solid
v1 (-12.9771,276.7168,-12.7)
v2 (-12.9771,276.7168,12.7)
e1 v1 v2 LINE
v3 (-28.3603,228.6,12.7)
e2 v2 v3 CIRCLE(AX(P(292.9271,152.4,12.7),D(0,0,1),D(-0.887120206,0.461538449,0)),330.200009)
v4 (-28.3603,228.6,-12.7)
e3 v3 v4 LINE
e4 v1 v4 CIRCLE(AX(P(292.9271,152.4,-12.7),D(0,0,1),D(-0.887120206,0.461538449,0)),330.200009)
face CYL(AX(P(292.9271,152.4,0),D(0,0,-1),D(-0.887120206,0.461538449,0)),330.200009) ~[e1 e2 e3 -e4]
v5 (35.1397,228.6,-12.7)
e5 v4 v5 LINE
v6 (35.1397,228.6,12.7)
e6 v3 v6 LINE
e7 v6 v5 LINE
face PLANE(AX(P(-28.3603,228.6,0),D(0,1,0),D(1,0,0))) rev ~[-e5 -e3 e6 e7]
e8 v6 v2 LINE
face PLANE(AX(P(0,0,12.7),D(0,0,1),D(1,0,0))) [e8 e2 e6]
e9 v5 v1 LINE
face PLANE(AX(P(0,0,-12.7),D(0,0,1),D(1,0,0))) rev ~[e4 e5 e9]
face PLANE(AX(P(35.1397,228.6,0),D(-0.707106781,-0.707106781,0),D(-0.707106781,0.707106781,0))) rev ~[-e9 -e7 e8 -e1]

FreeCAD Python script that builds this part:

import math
import FreeCAD as App
import Part
import Sketcher
Q = App.Units.Quantity

doc = App.newDocument("Part")
body = doc.addObject("PartDesign::Body", "Body")

# Sketch on XY plane
sketch1 = body.newObject("Sketcher::SketchObject", "Sketch")
sketch1.AttachmentSupport = (doc.getObject("XY_Plane"), [""])
sketch1.MapMode = "FlatFace"
sketch1.addGeometry(Part.LineSegment(App.Vector(35, 229, 0), App.Vector(-13, 277, 0)), False)
sketch1.addGeometry(Part.ArcOfCircle(Part.Circle(App.Vector(293, 152, 0), App.Vector(0, 0, 1), 330), math.radians(157.88), math.radians(166.66)), False)
sketch1.addGeometry(Part.LineSegment(App.Vector(-28, 229, 0), App.Vector(35, 229, 0)), False)
sketch1.addConstraint(Sketcher.Constraint("Coincident", 0, 2, 1, 1))
sketch1.addConstraint(Sketcher.Constraint("Coincident", 1, 2, 2, 1))
sketch1.addConstraint(Sketcher.Constraint("Coincident", 2, 2, 0, 1))
sketch1.addConstraint(Sketcher.Constraint("Horizontal", 2))
sketch1.addConstraint(Sketcher.Constraint("Radius", 1, Q("13 in")))
sketch1.addConstraint(Sketcher.Constraint("DistanceX", 2, 1, 2, 2, Q("2.5 in")))
sketch1.addConstraint(Sketcher.Constraint("DistanceY", 1, 3, 1, 2, Q("3 in")))
sketch1.addConstraint(Sketcher.Constraint("DistanceY", -1, 1, 1, 3, Q("6 in")))
sketch1.addConstraint(Sketcher.Constraint("Angle", 0, Q("135 deg")))
sketch1.addConstraint(Sketcher.Constraint("DistanceX", 0, 2, -1, 1, Q("0.5109 in")))
pad1 = body.newObject("PartDesign::Pad", "Pad")
pad1.Profile = sketch1
pad1.Length = Q("1 in")
pad1.Midplane = True

doc.recompute()
